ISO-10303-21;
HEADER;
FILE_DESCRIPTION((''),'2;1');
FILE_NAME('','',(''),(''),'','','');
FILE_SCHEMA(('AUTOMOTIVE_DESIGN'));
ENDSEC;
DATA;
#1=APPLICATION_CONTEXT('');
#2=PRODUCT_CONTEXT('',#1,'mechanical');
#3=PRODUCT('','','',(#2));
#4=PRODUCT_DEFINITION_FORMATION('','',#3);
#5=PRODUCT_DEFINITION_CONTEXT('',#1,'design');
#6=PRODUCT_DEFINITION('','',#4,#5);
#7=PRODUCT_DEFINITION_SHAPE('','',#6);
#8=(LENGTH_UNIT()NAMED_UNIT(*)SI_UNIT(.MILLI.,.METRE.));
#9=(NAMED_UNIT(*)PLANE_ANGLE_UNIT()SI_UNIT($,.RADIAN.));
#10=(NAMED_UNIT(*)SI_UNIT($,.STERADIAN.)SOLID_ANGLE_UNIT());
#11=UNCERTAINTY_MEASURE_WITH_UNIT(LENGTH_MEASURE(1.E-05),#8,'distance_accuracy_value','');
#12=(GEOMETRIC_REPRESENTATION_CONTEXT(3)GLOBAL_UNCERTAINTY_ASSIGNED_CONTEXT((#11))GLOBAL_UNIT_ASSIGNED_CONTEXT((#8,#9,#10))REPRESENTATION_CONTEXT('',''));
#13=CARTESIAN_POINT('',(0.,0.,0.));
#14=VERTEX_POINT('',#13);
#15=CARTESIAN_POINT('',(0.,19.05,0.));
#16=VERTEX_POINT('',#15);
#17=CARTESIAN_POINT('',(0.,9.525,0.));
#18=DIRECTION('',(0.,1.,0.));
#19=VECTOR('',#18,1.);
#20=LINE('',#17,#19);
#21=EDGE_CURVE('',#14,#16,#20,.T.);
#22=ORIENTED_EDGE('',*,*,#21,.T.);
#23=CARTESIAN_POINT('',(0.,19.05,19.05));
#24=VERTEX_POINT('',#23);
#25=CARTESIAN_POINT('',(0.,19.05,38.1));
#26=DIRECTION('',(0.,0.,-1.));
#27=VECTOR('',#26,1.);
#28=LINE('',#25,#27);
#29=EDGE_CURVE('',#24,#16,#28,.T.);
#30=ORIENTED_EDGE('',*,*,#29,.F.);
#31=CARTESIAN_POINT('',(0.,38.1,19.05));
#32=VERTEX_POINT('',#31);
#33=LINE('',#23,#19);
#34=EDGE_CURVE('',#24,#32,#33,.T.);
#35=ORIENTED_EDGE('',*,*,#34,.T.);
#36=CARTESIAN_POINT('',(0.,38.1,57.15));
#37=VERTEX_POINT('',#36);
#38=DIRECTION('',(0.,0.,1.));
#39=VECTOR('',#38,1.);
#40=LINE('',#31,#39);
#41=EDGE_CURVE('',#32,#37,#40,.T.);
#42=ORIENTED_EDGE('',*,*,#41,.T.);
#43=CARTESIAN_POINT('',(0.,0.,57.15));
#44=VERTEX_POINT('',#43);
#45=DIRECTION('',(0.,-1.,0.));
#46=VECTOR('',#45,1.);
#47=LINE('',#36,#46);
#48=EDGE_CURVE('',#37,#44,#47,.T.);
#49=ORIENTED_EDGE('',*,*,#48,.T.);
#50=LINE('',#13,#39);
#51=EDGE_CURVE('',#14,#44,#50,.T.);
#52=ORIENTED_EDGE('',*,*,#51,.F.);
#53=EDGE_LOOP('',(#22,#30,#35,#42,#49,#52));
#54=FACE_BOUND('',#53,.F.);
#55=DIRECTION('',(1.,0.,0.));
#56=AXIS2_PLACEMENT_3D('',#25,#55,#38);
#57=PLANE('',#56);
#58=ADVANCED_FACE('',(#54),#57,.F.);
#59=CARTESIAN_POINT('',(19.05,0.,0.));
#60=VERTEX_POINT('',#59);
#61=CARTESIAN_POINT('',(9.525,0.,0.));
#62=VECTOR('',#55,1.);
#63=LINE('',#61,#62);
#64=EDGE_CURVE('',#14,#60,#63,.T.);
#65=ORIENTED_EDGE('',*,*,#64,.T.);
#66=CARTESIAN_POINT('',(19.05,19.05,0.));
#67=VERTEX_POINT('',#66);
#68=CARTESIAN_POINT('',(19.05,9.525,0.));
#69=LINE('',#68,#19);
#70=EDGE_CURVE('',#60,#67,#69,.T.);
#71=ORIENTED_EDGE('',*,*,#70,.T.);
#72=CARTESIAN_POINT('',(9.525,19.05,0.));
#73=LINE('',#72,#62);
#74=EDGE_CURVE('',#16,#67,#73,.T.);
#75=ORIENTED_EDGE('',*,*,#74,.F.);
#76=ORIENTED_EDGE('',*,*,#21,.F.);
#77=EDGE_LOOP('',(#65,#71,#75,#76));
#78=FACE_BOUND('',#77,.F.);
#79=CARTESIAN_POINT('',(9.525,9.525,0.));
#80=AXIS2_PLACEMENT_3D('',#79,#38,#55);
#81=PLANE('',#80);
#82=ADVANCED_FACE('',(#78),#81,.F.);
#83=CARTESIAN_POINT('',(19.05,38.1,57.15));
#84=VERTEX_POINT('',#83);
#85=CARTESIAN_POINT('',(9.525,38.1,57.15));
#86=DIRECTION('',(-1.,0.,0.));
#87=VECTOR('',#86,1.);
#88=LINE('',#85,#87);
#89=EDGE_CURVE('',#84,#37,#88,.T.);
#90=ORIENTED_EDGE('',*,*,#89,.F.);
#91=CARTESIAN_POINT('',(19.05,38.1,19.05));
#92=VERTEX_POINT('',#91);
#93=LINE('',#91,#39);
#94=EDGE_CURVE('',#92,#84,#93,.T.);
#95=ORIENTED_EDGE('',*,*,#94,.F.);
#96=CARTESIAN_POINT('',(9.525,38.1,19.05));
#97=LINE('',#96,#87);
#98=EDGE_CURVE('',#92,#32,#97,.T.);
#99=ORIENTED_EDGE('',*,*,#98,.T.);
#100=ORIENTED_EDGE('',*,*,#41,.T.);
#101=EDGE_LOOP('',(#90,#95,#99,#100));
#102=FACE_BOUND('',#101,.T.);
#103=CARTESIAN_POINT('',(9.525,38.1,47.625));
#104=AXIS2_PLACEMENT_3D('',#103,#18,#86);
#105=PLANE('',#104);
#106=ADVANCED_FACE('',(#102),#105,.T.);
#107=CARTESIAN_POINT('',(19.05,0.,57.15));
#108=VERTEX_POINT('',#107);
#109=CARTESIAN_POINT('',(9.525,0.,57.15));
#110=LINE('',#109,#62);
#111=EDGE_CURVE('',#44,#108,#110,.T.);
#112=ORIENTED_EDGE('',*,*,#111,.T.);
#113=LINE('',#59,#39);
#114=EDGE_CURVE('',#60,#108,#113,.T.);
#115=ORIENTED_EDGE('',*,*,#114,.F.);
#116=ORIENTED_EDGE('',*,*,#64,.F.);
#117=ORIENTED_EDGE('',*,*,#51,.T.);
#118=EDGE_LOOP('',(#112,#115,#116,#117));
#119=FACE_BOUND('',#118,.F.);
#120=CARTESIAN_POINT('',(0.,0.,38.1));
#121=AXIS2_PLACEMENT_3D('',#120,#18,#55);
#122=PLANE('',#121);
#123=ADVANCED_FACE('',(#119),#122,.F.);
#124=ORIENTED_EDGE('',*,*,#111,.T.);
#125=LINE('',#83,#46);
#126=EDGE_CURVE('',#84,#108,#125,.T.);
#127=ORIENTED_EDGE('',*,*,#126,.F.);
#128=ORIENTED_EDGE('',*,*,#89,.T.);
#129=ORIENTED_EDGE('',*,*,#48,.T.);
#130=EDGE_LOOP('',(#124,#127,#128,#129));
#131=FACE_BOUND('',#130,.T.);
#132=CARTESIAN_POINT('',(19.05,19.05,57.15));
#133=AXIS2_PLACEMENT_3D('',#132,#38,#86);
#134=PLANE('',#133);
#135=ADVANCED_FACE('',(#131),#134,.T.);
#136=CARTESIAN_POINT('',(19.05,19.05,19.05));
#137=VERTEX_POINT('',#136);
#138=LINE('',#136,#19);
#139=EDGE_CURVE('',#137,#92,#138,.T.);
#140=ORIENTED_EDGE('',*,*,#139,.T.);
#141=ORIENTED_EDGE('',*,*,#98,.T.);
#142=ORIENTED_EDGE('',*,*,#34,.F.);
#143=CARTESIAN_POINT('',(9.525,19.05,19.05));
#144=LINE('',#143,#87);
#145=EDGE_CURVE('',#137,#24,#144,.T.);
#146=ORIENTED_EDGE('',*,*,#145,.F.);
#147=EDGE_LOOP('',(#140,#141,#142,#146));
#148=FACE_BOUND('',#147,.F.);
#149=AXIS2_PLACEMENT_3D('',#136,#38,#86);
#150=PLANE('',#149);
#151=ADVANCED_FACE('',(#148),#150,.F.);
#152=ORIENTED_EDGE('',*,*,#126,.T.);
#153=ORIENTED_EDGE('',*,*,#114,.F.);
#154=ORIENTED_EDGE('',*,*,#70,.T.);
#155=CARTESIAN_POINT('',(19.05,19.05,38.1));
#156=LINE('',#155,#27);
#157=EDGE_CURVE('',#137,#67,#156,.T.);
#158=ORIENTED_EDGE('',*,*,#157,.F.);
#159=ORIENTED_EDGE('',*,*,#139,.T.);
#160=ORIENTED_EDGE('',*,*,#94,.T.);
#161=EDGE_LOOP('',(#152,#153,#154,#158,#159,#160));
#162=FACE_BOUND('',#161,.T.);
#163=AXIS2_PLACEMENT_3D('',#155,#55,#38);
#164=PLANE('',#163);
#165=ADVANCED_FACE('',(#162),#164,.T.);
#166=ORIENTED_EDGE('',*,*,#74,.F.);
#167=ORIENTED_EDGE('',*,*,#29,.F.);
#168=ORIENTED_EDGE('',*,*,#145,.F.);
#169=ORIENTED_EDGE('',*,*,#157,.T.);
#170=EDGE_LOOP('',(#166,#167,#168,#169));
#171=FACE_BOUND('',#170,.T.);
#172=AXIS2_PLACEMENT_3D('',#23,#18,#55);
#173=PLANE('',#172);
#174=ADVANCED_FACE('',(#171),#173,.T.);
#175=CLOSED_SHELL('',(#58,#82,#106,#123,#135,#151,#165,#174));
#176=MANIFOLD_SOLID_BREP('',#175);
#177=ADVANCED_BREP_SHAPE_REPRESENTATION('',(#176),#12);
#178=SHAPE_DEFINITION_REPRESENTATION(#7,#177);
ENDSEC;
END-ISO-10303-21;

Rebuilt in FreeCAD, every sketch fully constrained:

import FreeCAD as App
import Part
import Sketcher
from FreeCAD import Vector
Q = App.Units.Quantity


def add_polygon(sketch, points):
    """Adds a closed chain of lines whose ends are joined by coincident constraints."""
    first, n = sketch.GeometryCount, len(points)
    for a, b in zip(points, points[1:] + points[:1]):
        sketch.addGeometry(Part.LineSegment(App.Vector(*a, 0), App.Vector(*b, 0)), False)
    for i in range(n):
        sketch.addConstraint(Sketcher.Constraint("Coincident", first + i, 2, first + (i + 1) % n, 1))

doc = App.newDocument("Part")
body = doc.addObject("PartDesign::Body", "Body")

# Sketch on XY plane
sketch1 = body.newObject("Sketcher::SketchObject", "Sketch")
sketch1.AttachmentSupport = (doc.getObject("XY_Plane"), [""])
sketch1.MapMode = "FlatFace"
add_polygon(sketch1, [(0, 19), (0, 0), (19, 0), (19, 19)])  # lines 0-3
sketch1.addConstraint([
    Sketcher.Constraint("Vertical", 0),
    Sketcher.Constraint("Horizontal", 1),
    Sketcher.Constraint("Vertical", 2),
    Sketcher.Constraint("Horizontal", 3),
    Sketcher.Constraint("Coincident", 0, 2, -1, 1),
    Sketcher.Constraint("Equal", 3, 0),
    Sketcher.Constraint("DistanceX", 1, 1, 1, 2, Q("0.75 in")),
])
pad1 = body.newObject("PartDesign::Pad", "Pad")
pad1.Profile = sketch1
pad1.Length = Q("0.75 in")

# Sketch on XY plane
sketch2 = body.newObject("Sketcher::SketchObject", "Sketch001")
sketch2.AttachmentSupport = (doc.getObject("XY_Plane"), [""])
sketch2.MapMode = "FlatFace"
sketch2.AttachmentOffset = App.Placement(Vector(0, 0, 0.75 * 25.4), App.Rotation())
add_polygon(sketch2, [(0, 19), (0, 0), (19, 0), (19, 19)])  # lines 0-3
sketch2.addConstraint([
    Sketcher.Constraint("Vertical", 0),
    Sketcher.Constraint("Horizontal", 1),
    Sketcher.Constraint("Vertical", 2),
    Sketcher.Constraint("Horizontal", 3),
    Sketcher.Constraint("Coincident", 0, 2, -1, 1),
    Sketcher.Constraint("Equal", 3, 0),
    Sketcher.Constraint("DistanceX", 1, 1, 1, 2, Q("0.75 in")),
])
pad2 = body.newObject("PartDesign::Pad", "Pad001")
pad2.Profile = sketch2
pad2.Length = Q("0.75 in")

# Sketch on XZ plane
sketch3 = body.newObject("Sketcher::SketchObject", "Sketch002")
sketch3.AttachmentSupport = (doc.getObject("XZ_Plane"), [""])
sketch3.MapMode = "FlatFace"
sketch3.AttachmentOffset = App.Placement(Vector(0, 0, -0.75 * 25.4), App.Rotation())
add_polygon(sketch3, [(19, 38), (19, 19), (0, 19), (0, 38)])  # lines 0-3
sketch3.addConstraint([
    Sketcher.Constraint("Vertical", 0),
    Sketcher.Constraint("Horizontal", 1),
    Sketcher.Constraint("Vertical", 2),
    Sketcher.Constraint("Horizontal", 3),
    Sketcher.Constraint("PointOnObject", 1, 2, -2),
    Sketcher.Constraint("Equal", 3, 0),
    Sketcher.Constraint("DistanceX", 1, 2, 1, 1, Q("0.75 in")),
    Sketcher.Constraint("DistanceY", -1, 1, 2, 2, Q("1.5 in")),
])
pad3 = body.newObject("PartDesign::Pad", "Pad002")
pad3.Profile = sketch3
pad3.Length = Q("0.75 in")
pad3.Reversed = True

# Sketch on XY plane
sketch4 = body.newObject("Sketcher::SketchObject", "Sketch003")
sketch4.AttachmentSupport = (doc.getObject("XY_Plane"), [""])
sketch4.MapMode = "FlatFace"
sketch4.AttachmentOffset = App.Placement(Vector(0, 0, 1.5 * 25.4), App.Rotation())
add_polygon(sketch4, [(0, 19), (0, 0), (19, 0), (19, 19)])  # lines 0-3
sketch4.addConstraint([
    Sketcher.Constraint("Vertical", 0),
    Sketcher.Constraint("Horizontal", 1),
    Sketcher.Constraint("Vertical", 2),
    Sketcher.Constraint("Horizontal", 3),
    Sketcher.Constraint("Coincident", 0, 2, -1, 1),
    Sketcher.Constraint("Equal", 3, 0),
    Sketcher.Constraint("DistanceX", 1, 1, 1, 2, Q("0.75 in")),
])
pad4 = body.newObject("PartDesign::Pad", "Pad003")
pad4.Profile = sketch4
pad4.Length = Q("0.75 in")

# Sketch on XZ plane
sketch5 = body.newObject("Sketcher::SketchObject", "Sketch004")
sketch5.AttachmentSupport = (doc.getObject("XZ_Plane"), [""])
sketch5.MapMode = "FlatFace"
sketch5.AttachmentOffset = App.Placement(Vector(0, 0, -0.75 * 25.4), App.Rotation())
add_polygon(sketch5, [(19, 57), (19, 38), (0, 38), (0, 57)])  # lines 0-3
sketch5.addConstraint([
    Sketcher.Constraint("Vertical", 0),
    Sketcher.Constraint("Horizontal", 1),
    Sketcher.Constraint("Vertical", 2),
    Sketcher.Constraint("Horizontal", 3),
    Sketcher.Constraint("PointOnObject", 1, 2, -2),
    Sketcher.Constraint("Equal", 3, 0),
    Sketcher.Constraint("DistanceX", 1, 2, 1, 1, Q("0.75 in")),
    Sketcher.Constraint("DistanceY", -1, 1, 0, 2, Q("1.5 in")),
])
pad5 = body.newObject("PartDesign::Pad", "Pad004")
pad5.Profile = sketch5
pad5.Length = Q("0.75 in")
pad5.Reversed = True

doc.recompute()
